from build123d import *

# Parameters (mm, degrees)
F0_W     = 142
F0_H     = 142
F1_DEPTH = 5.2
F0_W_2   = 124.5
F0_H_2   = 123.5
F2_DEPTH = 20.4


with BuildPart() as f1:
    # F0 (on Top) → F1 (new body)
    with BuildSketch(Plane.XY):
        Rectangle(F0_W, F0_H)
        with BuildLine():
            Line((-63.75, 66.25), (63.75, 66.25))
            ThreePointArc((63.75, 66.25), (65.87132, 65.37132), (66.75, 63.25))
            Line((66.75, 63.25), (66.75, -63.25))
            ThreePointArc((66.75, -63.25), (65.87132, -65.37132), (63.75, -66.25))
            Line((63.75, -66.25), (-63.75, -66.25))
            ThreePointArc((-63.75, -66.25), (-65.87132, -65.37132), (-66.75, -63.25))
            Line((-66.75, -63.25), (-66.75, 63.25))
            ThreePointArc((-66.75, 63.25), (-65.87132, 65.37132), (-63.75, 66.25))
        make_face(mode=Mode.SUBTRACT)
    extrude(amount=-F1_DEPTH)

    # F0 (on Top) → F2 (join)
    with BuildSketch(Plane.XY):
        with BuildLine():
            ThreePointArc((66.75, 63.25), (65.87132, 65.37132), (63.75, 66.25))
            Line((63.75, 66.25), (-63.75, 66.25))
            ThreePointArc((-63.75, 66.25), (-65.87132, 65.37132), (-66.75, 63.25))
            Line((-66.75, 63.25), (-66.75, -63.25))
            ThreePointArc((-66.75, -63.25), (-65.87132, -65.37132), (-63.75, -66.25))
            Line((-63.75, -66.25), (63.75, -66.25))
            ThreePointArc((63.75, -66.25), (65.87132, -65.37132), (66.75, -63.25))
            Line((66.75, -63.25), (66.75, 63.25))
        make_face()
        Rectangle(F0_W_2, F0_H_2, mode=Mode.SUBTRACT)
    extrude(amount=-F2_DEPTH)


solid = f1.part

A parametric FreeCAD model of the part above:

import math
import FreeCAD as App
import Part
import Sketcher

V = App.Vector
Q = App.Units.Quantity

doc = App.newDocument("Part")
body = doc.addObject("PartDesign::Body", "Body")

# Sketch on XY plane
sketch1 = doc.addObject("Sketcher::SketchObject", "Sketch")
body.addObject(sketch1)
sketch1.AttachmentSupport = (doc.XY_Plane, [""])
sketch1.MapMode = "FlatFace"
sketch1.addGeometry([
    Part.LineSegment(V(-71, 71, 0), V(-71, -71, 0)),  # 0
    Part.LineSegment(V(-71, -71, 0), V(71, -71, 0)),  # 1
    Part.LineSegment(V(71, -71, 0), V(71, 71, 0)),  # 2
    Part.LineSegment(V(71, 71, 0), V(-71, 71, 0)),  # 3
    Part.ArcOfCircle(Part.Circle(V(-63.7, 63.2, 0), V(0, 0, 1), 3), math.radians(90), math.radians(180)),  # 4
    Part.LineSegment(V(-63.8, 66.2, 0), V(63.8, 66.2, 0)),  # 5
    Part.ArcOfCircle(Part.Circle(V(63.7, 63.2, 0), V(0, 0, 1), 3), math.radians(0), math.radians(90)),  # 6
    Part.LineSegment(V(66.8, 63.2, 0), V(66.8, -63.2, 0)),  # 7
    Part.ArcOfCircle(Part.Circle(V(63.7, -63.2, 0), V(0, 0, 1), 3), math.radians(-90), math.radians(0)),  # 8
    Part.LineSegment(V(63.8, -66.2, 0), V(-63.8, -66.2, 0)),  # 9
    Part.ArcOfCircle(Part.Circle(V(-63.7, -63.2, 0), V(0, 0, 1), 3), math.radians(-180), math.radians(-90)),  # 10
    Part.LineSegment(V(-66.8, -63.2, 0), V(-66.8, 63.2, 0)),  # 11
], False)
sketch1.addConstraint([
    Sketcher.Constraint("Coincident", 0, 2, 1, 1),
    Sketcher.Constraint("Coincident", 1, 2, 2, 1),
    Sketcher.Constraint("Coincident", 2, 2, 3, 1),
    Sketcher.Constraint("Coincident", 3, 2, 0, 1),
    Sketcher.Constraint("Tangent", 4, 1, 5, 1),
    Sketcher.Constraint("Tangent", 5, 2, 6, 2),
    Sketcher.Constraint("Tangent", 6, 1, 7, 1),
    Sketcher.Constraint("Tangent", 7, 2, 8, 2),
    Sketcher.Constraint("Tangent", 8, 1, 9, 1),
    Sketcher.Constraint("Tangent", 9, 2, 10, 2),
    Sketcher.Constraint("Tangent", 10, 1, 11, 1),
    Sketcher.Constraint("Tangent", 11, 2, 4, 2),
    Sketcher.Constraint("Vertical", 0),
    Sketcher.Constraint("Horizontal", 1),
    Sketcher.Constraint("Vertical", 2),
    Sketcher.Constraint("Horizontal", 3),
    Sketcher.Constraint("Horizontal", 5),
    Sketcher.Constraint("Vertical", 7),
    Sketcher.Constraint("Horizontal", 9),
    Sketcher.Constraint("Vertical", 11),
    Sketcher.Constraint("Equal", 4, 6),
    Sketcher.Constraint("Equal", 6, 8),
    Sketcher.Constraint("Equal", 8, 10),
    Sketcher.Constraint("Symmetric", 4, 3, 8, 3, -1, 1),
    Sketcher.Constraint("Symmetric", 0, 2, 2, 2, -1, 1),
    Sketcher.Constraint("Equal", 3, 0),
    Sketcher.Constraint("Radius", 4, Q("3.000001 mm")),
    Sketcher.Constraint("DistanceX", 1, 1, 1, 2, Q("142 mm")),
    Sketcher.Constraint("DistanceX", 5, 1, 5, 2, Q("127.5 mm")),
    Sketcher.Constraint("DistanceY", 7, 2, 7, 1, Q("126.5 mm")),
])
pad1 = doc.addObject("PartDesign::Pad", "Pad")
body.addObject(pad1)
pad1.Profile = sketch1
pad1.Length = 5.2
pad1.Reversed = True

# Sketch on XY plane
sketch2 = doc.addObject("Sketcher::SketchObject", "Sketch001")
body.addObject(sketch2)
sketch2.AttachmentSupport = (doc.XY_Plane, [""])
sketch2.MapMode = "FlatFace"
sketch2.addGeometry([
    Part.ArcOfCircle(Part.Circle(V(63.7, 63.2, 0), V(0, 0, 1), 3), math.radians(0), math.radians(90)),  # 0
    Part.LineSegment(V(63.8, 66.2, 0), V(-63.8, 66.2, 0)),  # 1
    Part.ArcOfCircle(Part.Circle(V(-63.7, 63.2, 0), V(0, 0, 1), 3), math.radians(90), math.radians(180)),  # 2
    Part.LineSegment(V(-66.8, 63.2, 0), V(-66.8, -63.2, 0)),  # 3
    Part.ArcOfCircle(Part.Circle(V(-63.7, -63.2, 0), V(0, 0, 1), 3), math.radians(-180), math.radians(-90)),  # 4
    Part.LineSegment(V(-63.8, -66.2, 0), V(63.8, -66.2, 0)),  # 5
    Part.ArcOfCircle(Part.Circle(V(63.7, -63.2, 0), V(0, 0, 1), 3), math.radians(-90), math.radians(0)),  # 6
    Part.LineSegment(V(66.8, -63.2, 0), V(66.8, 63.2, 0)),  # 7
    Part.LineSegment(V(62.2, -61.8, 0), V(-62.2, -61.8, 0)),  # 8
    Part.LineSegment(V(-62.2, -61.8, 0), V(-62.2, 61.8, 0)),  # 9
    Part.LineSegment(V(-62.2, 61.8, 0), V(62.2, 61.8, 0)),  # 10
    Part.LineSegment(V(62.2, 61.8, 0), V(62.2, -61.8, 0)),  # 11
], False)
sketch2.addConstraint([
    Sketcher.Constraint("Tangent", 0, 2, 1, 1),
    Sketcher.Constraint("Tangent", 1, 2, 2, 1),
    Sketcher.Constraint("Tangent", 2, 2, 3, 1),
    Sketcher.Constraint("Tangent", 3, 2, 4, 1),
    Sketcher.Constraint("Tangent", 4, 2, 5, 1),
    Sketcher.Constraint("Tangent", 5, 2, 6, 1),
    Sketcher.Constraint("Tangent", 6, 2, 7, 1),
    Sketcher.Constraint("Tangent", 7, 2, 0, 1),
    Sketcher.Constraint("Coincident", 8, 2, 9, 1),
    Sketcher.Constraint("Coincident", 9, 2, 10, 1),
    Sketcher.Constraint("Coincident", 10, 2, 11, 1),
    Sketcher.Constraint("Coincident", 11, 2, 8, 1),
    Sketcher.Constraint("Horizontal", 1),
    Sketcher.Constraint("Vertical", 3),
    Sketcher.Constraint("Horizontal", 5),
    Sketcher.Constraint("Vertical", 7),
    Sketcher.Constraint("Horizontal", 8),
    Sketcher.Constraint("Vertical", 9),
    Sketcher.Constraint("Horizontal", 10),
    Sketcher.Constraint("Vertical", 11),
    Sketcher.Constraint("Equal", 0, 2),
    Sketcher.Constraint("Equal", 2, 4),
    Sketcher.Constraint("Equal", 4, 6),
    Sketcher.Constraint("Symmetric", 0, 3, 4, 3, -1, 1),
    Sketcher.Constraint("Symmetric", 8, 2, 10, 2, -1, 1),
    Sketcher.Constraint("Radius", 0, Q("3.000001 mm")),
    Sketcher.Constraint("DistanceX", 1, 2, 1, 1, Q("127.5 mm")),
    Sketcher.Constraint("DistanceX", 8, 2, 8, 1, Q("124.5 mm")),
    Sketcher.Constraint("DistanceY", 3, 2, 3, 1, Q("126.5 mm")),
    Sketcher.Constraint("DistanceY", 9, 1, 9, 2, Q("123.5 mm")),
])
pad2 = doc.addObject("PartDesign::Pad", "Pad001")
body.addObject(pad2)
pad2.Profile = sketch2
pad2.Length = 20.4
pad2.Reversed = True

doc.recompute()
